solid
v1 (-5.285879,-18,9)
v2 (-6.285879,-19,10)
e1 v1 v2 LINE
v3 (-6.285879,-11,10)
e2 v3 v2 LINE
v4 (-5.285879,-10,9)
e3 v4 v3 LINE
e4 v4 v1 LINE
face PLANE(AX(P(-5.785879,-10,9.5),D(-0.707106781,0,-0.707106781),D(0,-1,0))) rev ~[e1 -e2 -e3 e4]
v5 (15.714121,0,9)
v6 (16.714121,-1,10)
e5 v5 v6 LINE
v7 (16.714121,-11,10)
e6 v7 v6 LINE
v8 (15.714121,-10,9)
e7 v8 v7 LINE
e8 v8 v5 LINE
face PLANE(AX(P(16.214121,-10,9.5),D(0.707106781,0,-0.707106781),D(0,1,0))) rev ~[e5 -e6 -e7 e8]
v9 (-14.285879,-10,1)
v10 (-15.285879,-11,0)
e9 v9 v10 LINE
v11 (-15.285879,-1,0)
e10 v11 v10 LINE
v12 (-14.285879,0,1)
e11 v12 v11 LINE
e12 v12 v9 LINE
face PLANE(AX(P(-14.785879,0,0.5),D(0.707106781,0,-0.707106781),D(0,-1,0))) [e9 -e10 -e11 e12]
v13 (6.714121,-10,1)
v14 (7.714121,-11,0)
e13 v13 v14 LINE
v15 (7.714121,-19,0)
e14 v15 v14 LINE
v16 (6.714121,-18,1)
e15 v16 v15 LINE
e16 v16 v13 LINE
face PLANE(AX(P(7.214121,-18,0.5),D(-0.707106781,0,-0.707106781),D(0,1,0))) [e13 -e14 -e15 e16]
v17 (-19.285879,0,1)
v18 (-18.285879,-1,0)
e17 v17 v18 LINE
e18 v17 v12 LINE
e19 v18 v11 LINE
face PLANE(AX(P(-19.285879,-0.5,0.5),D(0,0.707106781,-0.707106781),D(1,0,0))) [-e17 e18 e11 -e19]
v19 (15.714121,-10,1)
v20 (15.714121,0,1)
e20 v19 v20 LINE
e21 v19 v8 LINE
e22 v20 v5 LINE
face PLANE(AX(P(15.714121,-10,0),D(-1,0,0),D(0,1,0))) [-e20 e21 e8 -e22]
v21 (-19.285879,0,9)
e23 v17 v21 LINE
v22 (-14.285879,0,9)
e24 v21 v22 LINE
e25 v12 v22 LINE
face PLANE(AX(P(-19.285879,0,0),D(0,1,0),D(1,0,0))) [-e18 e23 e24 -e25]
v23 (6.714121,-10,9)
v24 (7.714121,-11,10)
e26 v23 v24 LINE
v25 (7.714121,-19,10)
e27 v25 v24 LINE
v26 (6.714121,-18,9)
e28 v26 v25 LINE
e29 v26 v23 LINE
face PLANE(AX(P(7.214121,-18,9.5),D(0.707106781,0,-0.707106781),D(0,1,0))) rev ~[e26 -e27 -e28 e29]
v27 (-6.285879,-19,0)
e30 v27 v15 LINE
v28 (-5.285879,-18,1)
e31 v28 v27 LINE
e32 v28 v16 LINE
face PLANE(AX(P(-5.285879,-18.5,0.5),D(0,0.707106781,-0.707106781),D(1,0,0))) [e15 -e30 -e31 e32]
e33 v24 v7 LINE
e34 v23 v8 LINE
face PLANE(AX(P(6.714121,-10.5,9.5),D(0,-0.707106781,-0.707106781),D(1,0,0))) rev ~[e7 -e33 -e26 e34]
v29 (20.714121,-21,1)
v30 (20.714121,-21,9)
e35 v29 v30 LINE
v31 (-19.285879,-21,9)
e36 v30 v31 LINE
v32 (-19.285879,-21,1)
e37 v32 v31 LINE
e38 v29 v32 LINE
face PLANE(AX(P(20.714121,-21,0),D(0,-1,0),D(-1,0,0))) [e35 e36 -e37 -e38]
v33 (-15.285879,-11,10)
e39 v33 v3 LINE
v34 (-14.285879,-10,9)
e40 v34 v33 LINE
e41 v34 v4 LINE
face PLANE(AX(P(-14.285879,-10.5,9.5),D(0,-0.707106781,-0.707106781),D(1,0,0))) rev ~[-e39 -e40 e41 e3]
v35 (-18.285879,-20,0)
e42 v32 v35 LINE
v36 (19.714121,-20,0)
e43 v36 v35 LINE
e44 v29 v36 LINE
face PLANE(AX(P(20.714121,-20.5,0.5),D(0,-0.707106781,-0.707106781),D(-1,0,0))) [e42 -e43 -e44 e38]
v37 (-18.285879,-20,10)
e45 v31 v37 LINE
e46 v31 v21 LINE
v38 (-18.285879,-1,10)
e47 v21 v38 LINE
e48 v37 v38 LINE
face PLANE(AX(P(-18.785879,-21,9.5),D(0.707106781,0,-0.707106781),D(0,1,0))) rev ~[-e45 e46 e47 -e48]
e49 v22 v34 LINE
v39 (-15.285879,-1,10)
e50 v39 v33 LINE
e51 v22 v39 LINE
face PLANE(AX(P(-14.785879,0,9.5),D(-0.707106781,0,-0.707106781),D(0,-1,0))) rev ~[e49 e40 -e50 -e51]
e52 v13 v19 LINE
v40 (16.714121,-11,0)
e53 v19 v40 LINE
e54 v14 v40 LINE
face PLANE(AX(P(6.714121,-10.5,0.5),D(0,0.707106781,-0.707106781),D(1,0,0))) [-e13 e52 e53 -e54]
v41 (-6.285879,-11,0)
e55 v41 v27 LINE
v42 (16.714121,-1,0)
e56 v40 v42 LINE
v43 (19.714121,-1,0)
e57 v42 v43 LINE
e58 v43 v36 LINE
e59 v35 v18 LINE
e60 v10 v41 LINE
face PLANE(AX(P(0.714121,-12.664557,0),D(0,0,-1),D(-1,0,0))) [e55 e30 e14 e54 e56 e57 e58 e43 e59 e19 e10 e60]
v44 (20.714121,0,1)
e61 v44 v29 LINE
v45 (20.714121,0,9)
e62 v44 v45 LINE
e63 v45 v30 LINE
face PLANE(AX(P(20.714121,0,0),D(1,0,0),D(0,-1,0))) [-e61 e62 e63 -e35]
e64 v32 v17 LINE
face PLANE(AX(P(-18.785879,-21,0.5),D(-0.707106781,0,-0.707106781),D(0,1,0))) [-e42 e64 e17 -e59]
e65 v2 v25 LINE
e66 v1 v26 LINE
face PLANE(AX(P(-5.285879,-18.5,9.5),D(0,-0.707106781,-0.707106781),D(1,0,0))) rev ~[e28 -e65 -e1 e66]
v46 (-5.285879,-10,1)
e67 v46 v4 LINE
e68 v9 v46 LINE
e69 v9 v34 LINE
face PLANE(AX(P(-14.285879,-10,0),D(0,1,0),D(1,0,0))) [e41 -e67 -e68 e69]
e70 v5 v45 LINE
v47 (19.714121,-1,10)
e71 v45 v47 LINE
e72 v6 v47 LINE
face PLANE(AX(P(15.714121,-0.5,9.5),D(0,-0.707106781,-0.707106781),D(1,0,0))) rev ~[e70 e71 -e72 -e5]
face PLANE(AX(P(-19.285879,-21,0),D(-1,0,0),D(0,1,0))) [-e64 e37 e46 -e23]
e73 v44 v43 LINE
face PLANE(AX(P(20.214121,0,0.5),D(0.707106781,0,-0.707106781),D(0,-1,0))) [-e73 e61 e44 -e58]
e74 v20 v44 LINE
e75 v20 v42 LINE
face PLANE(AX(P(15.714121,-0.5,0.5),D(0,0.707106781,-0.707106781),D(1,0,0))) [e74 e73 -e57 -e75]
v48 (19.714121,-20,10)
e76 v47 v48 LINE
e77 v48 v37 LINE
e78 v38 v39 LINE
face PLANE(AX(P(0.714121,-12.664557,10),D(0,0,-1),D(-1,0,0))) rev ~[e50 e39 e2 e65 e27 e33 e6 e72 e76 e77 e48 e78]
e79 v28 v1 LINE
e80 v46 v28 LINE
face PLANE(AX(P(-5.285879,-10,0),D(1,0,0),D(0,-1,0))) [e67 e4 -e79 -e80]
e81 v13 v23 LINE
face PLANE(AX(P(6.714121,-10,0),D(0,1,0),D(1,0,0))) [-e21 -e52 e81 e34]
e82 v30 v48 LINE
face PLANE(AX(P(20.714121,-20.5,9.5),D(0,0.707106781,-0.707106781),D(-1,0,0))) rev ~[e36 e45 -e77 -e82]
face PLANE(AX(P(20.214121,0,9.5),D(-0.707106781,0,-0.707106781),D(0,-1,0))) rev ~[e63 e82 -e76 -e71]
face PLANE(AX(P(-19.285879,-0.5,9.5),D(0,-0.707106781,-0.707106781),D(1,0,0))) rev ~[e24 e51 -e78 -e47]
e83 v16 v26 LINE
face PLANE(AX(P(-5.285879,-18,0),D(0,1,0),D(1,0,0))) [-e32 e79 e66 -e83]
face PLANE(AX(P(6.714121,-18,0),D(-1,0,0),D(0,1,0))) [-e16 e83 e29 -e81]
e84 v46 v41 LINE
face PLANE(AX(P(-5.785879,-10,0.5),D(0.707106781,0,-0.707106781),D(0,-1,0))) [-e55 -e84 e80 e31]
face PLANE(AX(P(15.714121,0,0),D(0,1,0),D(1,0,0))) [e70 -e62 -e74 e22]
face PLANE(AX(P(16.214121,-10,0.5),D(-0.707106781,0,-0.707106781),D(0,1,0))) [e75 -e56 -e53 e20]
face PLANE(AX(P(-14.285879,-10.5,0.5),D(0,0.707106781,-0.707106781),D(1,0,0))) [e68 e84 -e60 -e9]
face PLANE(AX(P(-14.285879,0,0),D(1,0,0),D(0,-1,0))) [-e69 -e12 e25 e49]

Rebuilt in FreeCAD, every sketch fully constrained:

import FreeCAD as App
import Part
import Sketcher


def edges_at(feature, points):
    """Names of the edges that pass closest to the given points."""
    edges = feature.Shape.Edges
    near = lambda p: min(range(len(edges)), key=lambda i: edges[i].distToShape(Part.Vertex(*p))[0])
    return sorted({f"Edge{near(p) + 1}" for p in points})


def add_polygon(sketch, points):
    """Adds a closed chain of lines whose ends are joined by coincident constraints."""
    first, n = sketch.GeometryCount, len(points)
    for a, b in zip(points, points[1:] + points[:1]):
        sketch.addGeometry(Part.LineSegment(App.Vector(*a, 0), App.Vector(*b, 0)), False)
    for i in range(n):
        sketch.addConstraint(Sketcher.Constraint("Coincident", first + i, 2, first + (i + 1) % n, 1))

doc = App.newDocument("Part")
body = doc.addObject("PartDesign::Body", "Body")

# Sketch on XY plane
sketch1 = doc.addObject("Sketcher::SketchObject", "Sketch")
body.addObject(sketch1)
sketch1.AttachmentSupport = (doc.XY_Plane, [""])
sketch1.MapMode = "FlatFace"
add_polygon(sketch1, [(-14.285879, -10), (-14.285879, 0), (-19.285879, 0), (-19.285879, -21), (20.714121, -21), (20.714121, 0), (15.714121, 0), (15.714121, -10), (6.714121, -10), (6.714121, -18), (-5.285879, -18), (-5.285879, -10)])  # lines 0-11
sketch1.addConstraint([
    Sketcher.Constraint("Vertical", 0),
    Sketcher.Constraint("Horizontal", 1),
    Sketcher.Constraint("Vertical", 2),
    Sketcher.Constraint("Horizontal", 3),
    Sketcher.Constraint("Vertical", 4),
    Sketcher.Constraint("Horizontal", 5),
    Sketcher.Constraint("Vertical", 6),
    Sketcher.Constraint("Horizontal", 7),
    Sketcher.Constraint("Vertical", 8),
    Sketcher.Constraint("Horizontal", 9),
    Sketcher.Constraint("Vertical", 10),
    Sketcher.Constraint("Horizontal", 11),
    Sketcher.Constraint("PointOnObject", 0, 2, -1),
    Sketcher.Constraint("PointOnObject", 4, 2, -1),
    Sketcher.Constraint("Horizontal", 7, 2, 10, 2),
    Sketcher.Constraint("Equal", 1, 5),
    Sketcher.Constraint("Equal", 7, 11),
    Sketcher.Constraint("DistanceX", 1, 2, 1, 1, 5.0),
    Sketcher.Constraint("DistanceX", 3, 1, 3, 2, 40.0),
    Sketcher.Constraint("DistanceX", 7, 2, 7, 1, 9.0),
    Sketcher.Constraint("DistanceY", 0, 1, 0, 2, 10.0),
    Sketcher.Constraint("DistanceY", 2, 2, 2, 1, 21.0),
    Sketcher.Constraint("DistanceY", 8, 2, 8, 1, 8.0),
    Sketcher.Constraint("DistanceX", 0, 2, -1, 1, 14.285879),
])
pad1 = doc.addObject("PartDesign::Pad", "Pad")
body.addObject(pad1)
pad1.Profile = sketch1
pad1.Length = 10
doc.recompute()

chamfer = doc.addObject("PartDesign::Chamfer", "Chamfer")
body.addObject(chamfer)
chamfer.Base = (pad1, edges_at(pad1, [
    (20.714, -10.5, 0),
    (0.714, -21, 0),
    (11.214, -10, 10),
    (-19.286, -10.5, 0),
    (-16.786, 0, 0),
    (-14.286, -5, 0),
    (-9.786, -10, 0),
    (-5.286, -14, 0),
    (0.714, -18, 0),
    (6.714, -14, 0),
    (11.214, -10, 0),
    (15.714, -5, 0),
    (18.214, 0, 0),
    (6.714, -14, 10),
    (0.714, -18, 10),
    (-5.286, -14, 10),
    (-9.786, -10, 10),
    (-14.286, -5, 10),
    (-16.786, 0, 10),
    (-19.286, -10.5, 10),
    (0.714, -21, 10),
    (20.714, -10.5, 10),
    (18.214, 0, 10),
    (15.714, -5, 10),
]))
chamfer.Size = 1

doc.recompute()
